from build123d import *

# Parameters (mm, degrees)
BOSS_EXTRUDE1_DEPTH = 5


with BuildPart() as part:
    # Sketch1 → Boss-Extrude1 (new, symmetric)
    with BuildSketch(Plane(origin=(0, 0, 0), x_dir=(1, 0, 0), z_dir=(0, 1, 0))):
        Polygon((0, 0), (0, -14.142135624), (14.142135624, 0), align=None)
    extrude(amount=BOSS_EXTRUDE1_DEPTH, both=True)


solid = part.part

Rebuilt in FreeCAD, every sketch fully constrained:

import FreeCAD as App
import Part
import Sketcher
from FreeCAD import Vector
Q = App.Units.Quantity

doc = App.newDocument("Part")
body = doc.addObject("PartDesign::Body", "Body")

# Sketch on XZ plane
sketch1 = body.newObject("Sketcher::SketchObject", "Sketch")
sketch1.AttachmentSupport = (doc.getObject("XZ_Plane"), [""])
sketch1.MapMode = "FlatFace"
sketch1.addGeometry([
    Part.LineSegment(Vector(0, 0, 0), Vector(0, 14.142136, 0)),
    Part.LineSegment(Vector(0, 14.142136, 0), Vector(14.142136, 0, 0)),
    Part.LineSegment(Vector(14.142136, 0, 0), Vector(0, 0, 0)),
], False)
sketch1.addConstraint([
    Sketcher.Constraint("Coincident", 0, 2, 1, 1),
    Sketcher.Constraint("Coincident", 1, 2, 2, 1),
    Sketcher.Constraint("Coincident", 2, 2, 0, 1),
    Sketcher.Constraint("Vertical", 0),
    Sketcher.Constraint("Horizontal", 2),
    Sketcher.Constraint("Coincident", 2, 2, -1, 1),
    Sketcher.Constraint("Equal", 2, 0),
    Sketcher.Constraint("Distance", 1, Q("20 mm")),
])
pad1 = body.newObject("PartDesign::Pad", "Pad")
pad1.Profile = sketch1
pad1.Length = 10
pad1.Midplane = True

doc.recompute()
